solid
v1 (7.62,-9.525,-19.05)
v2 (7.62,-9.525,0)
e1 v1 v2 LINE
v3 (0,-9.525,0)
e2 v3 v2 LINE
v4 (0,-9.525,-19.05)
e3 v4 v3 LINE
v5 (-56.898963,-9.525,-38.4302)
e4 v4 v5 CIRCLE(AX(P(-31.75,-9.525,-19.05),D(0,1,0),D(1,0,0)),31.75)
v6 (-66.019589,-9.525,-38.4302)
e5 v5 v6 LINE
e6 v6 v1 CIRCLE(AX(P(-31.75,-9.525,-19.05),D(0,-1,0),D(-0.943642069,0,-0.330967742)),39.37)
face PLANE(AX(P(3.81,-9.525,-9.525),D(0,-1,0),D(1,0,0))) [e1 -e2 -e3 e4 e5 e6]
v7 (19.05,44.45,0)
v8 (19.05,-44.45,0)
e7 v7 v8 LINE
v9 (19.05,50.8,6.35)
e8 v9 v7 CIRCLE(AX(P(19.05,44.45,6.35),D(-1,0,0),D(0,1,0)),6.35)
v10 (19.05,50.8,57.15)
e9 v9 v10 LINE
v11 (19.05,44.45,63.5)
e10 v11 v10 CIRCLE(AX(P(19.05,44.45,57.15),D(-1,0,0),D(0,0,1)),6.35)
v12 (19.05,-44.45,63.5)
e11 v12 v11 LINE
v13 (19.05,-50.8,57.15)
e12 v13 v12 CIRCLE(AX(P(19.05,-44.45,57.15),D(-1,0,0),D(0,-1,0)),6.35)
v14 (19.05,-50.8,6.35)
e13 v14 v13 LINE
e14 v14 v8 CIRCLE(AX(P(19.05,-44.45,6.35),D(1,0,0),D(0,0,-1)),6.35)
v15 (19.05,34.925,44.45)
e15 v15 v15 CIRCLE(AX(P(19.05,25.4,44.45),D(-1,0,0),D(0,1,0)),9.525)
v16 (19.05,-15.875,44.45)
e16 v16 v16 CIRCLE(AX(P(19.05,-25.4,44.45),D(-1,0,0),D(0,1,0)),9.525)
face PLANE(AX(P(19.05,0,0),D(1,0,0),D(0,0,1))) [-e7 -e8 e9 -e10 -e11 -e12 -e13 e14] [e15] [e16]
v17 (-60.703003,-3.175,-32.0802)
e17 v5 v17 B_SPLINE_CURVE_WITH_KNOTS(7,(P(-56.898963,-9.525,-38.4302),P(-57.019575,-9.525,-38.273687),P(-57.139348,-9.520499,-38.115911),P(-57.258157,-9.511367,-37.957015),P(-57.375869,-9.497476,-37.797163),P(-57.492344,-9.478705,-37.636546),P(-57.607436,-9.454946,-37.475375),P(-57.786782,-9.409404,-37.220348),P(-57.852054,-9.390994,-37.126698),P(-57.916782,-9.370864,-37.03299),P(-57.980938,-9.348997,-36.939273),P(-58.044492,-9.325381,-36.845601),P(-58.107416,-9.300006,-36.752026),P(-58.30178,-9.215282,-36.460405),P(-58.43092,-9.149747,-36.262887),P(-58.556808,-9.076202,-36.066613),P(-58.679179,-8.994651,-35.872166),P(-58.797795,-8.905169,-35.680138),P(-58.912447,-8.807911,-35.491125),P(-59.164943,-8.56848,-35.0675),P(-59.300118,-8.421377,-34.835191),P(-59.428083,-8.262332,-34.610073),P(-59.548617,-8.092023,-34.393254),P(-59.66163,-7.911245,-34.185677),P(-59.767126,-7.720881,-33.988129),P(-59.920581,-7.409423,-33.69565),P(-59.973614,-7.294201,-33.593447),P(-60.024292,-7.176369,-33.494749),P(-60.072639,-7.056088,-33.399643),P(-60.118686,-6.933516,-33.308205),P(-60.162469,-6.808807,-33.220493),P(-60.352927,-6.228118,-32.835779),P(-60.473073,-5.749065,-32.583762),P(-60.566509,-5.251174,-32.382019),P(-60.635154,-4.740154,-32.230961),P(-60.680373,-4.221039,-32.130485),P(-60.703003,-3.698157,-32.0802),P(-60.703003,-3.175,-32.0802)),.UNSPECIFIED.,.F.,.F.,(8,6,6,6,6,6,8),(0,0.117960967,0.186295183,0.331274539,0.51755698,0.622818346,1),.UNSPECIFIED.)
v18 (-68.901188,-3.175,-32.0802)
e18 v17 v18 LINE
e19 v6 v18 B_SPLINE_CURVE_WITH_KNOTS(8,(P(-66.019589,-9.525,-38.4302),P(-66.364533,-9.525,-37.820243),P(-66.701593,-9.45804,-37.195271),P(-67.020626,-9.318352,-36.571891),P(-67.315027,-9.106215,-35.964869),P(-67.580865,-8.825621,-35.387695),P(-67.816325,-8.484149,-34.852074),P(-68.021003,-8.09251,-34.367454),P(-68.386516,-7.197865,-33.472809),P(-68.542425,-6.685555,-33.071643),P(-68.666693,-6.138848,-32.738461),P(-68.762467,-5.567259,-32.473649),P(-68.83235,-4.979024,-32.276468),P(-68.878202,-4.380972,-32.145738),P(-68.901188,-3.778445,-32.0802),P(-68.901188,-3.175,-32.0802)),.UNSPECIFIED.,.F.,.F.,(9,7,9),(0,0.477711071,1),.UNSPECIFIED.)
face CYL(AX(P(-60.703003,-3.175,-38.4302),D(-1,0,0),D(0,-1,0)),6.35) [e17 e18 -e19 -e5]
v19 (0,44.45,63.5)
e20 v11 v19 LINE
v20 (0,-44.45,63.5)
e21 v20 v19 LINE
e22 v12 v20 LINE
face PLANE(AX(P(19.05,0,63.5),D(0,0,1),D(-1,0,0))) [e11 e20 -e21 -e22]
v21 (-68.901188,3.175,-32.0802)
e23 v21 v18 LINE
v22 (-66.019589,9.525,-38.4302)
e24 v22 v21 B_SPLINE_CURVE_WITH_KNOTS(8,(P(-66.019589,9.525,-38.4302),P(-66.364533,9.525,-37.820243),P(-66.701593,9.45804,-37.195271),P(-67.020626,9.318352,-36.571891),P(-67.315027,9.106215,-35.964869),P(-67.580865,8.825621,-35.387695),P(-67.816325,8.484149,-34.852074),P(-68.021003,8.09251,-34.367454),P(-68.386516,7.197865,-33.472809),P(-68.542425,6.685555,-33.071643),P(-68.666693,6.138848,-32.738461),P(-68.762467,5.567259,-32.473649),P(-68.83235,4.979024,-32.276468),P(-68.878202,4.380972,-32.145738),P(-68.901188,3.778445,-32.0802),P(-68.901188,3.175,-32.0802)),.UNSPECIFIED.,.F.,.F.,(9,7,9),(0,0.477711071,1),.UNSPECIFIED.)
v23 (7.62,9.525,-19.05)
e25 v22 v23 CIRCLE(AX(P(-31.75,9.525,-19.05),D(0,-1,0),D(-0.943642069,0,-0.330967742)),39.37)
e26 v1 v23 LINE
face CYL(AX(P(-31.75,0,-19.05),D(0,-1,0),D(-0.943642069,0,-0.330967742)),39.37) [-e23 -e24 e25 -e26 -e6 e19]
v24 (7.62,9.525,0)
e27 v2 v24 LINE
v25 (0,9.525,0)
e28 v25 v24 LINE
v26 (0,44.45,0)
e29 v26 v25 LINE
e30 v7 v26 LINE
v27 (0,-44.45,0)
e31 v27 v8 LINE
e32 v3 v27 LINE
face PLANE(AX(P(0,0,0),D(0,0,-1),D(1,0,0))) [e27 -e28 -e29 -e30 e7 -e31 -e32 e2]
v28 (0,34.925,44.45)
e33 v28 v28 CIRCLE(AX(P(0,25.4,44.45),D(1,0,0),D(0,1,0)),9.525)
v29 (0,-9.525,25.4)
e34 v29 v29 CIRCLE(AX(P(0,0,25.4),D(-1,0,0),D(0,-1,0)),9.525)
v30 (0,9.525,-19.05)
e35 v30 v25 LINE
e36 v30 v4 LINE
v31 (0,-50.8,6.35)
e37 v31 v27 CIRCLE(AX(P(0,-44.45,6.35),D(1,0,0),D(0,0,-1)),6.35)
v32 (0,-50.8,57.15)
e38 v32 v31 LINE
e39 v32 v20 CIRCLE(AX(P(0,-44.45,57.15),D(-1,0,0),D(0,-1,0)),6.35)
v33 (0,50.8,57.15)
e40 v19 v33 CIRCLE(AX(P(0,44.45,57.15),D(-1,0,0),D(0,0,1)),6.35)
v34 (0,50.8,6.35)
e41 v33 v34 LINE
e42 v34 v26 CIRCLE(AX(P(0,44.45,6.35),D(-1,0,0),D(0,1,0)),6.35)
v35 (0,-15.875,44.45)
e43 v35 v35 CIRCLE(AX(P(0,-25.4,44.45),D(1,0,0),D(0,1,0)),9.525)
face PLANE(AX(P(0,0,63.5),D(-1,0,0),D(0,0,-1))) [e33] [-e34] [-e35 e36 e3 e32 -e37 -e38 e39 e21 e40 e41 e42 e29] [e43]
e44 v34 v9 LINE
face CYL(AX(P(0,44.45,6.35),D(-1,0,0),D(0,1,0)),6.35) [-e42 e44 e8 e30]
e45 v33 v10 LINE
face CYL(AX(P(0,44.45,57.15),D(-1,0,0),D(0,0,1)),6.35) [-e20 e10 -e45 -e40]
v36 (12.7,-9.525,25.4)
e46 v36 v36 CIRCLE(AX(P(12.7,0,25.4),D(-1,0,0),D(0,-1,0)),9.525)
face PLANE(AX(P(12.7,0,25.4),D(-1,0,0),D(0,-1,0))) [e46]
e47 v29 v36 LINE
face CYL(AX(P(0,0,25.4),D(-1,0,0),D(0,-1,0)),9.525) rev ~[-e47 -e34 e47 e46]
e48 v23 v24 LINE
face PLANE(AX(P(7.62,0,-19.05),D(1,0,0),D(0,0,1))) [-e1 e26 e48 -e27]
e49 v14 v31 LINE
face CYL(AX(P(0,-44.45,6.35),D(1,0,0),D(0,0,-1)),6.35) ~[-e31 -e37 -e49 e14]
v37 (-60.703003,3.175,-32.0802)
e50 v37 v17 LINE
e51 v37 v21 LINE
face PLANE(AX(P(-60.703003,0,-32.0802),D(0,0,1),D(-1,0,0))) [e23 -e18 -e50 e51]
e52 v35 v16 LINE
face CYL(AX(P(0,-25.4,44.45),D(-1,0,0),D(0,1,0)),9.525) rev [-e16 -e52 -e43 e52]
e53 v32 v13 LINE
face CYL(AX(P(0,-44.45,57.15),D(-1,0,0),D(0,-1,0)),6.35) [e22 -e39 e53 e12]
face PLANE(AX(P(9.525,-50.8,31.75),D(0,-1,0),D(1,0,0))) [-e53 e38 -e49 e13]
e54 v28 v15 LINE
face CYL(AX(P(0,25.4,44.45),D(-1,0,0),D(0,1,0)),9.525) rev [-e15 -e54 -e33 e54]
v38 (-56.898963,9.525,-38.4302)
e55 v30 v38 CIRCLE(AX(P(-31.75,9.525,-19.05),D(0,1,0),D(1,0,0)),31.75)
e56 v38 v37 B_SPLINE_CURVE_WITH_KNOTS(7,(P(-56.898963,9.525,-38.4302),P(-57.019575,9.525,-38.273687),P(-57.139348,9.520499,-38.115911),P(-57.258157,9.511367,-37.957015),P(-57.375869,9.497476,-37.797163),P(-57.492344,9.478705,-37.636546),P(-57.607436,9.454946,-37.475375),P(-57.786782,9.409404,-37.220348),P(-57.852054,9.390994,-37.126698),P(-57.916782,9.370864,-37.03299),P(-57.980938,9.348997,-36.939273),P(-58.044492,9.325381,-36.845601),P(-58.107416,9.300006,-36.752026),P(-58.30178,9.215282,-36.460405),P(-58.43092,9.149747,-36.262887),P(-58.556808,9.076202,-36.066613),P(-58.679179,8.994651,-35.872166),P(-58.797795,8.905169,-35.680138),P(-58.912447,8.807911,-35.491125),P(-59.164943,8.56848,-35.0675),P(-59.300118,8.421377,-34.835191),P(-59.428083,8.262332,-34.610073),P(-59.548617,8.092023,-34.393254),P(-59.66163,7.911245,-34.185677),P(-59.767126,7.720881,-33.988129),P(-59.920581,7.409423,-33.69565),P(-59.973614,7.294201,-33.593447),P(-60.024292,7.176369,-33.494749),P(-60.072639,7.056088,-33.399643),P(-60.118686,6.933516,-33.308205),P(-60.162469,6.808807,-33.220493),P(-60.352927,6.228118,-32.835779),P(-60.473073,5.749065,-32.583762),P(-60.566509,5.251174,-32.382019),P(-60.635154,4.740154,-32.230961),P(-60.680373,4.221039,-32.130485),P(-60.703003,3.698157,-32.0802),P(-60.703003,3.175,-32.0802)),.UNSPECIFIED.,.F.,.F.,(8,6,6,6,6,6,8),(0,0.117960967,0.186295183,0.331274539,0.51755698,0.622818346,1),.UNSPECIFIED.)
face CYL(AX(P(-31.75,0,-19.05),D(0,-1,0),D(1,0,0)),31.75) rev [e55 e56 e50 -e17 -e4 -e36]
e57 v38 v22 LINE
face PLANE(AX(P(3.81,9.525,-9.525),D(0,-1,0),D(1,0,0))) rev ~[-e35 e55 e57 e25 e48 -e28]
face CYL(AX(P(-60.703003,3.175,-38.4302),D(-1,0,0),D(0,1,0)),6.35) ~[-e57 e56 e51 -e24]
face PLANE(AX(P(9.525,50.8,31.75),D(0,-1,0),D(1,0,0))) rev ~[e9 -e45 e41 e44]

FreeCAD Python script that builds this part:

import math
import FreeCAD as App
import Part
import Sketcher
Q = App.Units.Quantity


def edges_at(feature, points):
    """Names of the edges that pass closest to the given points."""
    edges = feature.Shape.Edges
    near = lambda p: min(range(len(edges)), key=lambda i: edges[i].distToShape(Part.Vertex(*p))[0])
    return sorted({f"Edge{near(p) + 1}" for p in points})


def add_polygon(sketch, points):
    """Adds a closed chain of lines whose ends are joined by coincident constraints."""
    first, n = sketch.GeometryCount, len(points)
    for a, b in zip(points, points[1:] + points[:1]):
        sketch.addGeometry(Part.LineSegment(App.Vector(*a, 0), App.Vector(*b, 0)), False)
    for i in range(n):
        sketch.addConstraint(Sketcher.Constraint("Coincident", first + i, 2, first + (i + 1) % n, 1))

doc = App.newDocument("Part")
params = doc.addObject("Spreadsheet::Sheet", "Params")
for row, (alias, value) in enumerate([
    ("sketch1_radius", "1.25 in"),
    ("sketch1_radius2", "1.55 in"),
    ("sketch1_height", "0.75 in"),
    ("pad1_length", "0.75 in"),
    ("sketch2_height", "2.5 in"),
    ("sketch2_width", "0.75 in"),
    ("pad2_length", "4 in"),
    ("sketch3_diameter", "0.75 in"),
    ("sketch4_diameter", "0.75 in"),
    ("pocket2_length", "0.5 in"),
    ("sketch5_radius", "0.25 in"),
    ("pocket3_length", "200 in"),
    ("fillet_radius", "0.25 in"),
], start=1):
    params.set(f"A{row}", alias)
    params.set(f"B{row}", "=" + value)
    params.setAlias(f"B{row}", alias)

body = doc.addObject("PartDesign::Body", "Body")

# Sketch on XZ plane
sketch1 = doc.addObject("Sketcher::SketchObject", "Sketch")
body.addObject(sketch1)
sketch1.AttachmentSupport = (doc.XZ_Plane, [""])
sketch1.MapMode = "FlatFace"
sketch1.addGeometry([
    Part.LineSegment(App.Vector(0, 0, 0), App.Vector(0, -19, 0)),  # 0
    Part.ArcOfCircle(Part.Circle(App.Vector(-32, -19, 0), App.Vector(0, 0, 1), 32), math.radians(-156), math.radians(0)),  # 1
    Part.LineSegment(App.Vector(-61, -32, 0), App.Vector(-69, -32, 0)),  # 2
    Part.ArcOfCircle(Part.Circle(App.Vector(-32, -19, 0), App.Vector(0, 0, 1), 39), math.radians(-161), math.radians(0)),  # 3
    Part.LineSegment(App.Vector(8, -19, 0), App.Vector(8, 0, 0)),  # 4
    Part.LineSegment(App.Vector(8, 0, 0), App.Vector(0, 0, 0)),  # 5
], False)
sketch1.addConstraint([
    Sketcher.Constraint("Tangent", 0, 2, 1, 2),
    Sketcher.Constraint("Coincident", 1, 1, 2, 1),
    Sketcher.Constraint("Coincident", 2, 2, 3, 1),
    Sketcher.Constraint("Tangent", 3, 2, 4, 1),
    Sketcher.Constraint("Coincident", 4, 2, 5, 1),
    Sketcher.Constraint("Coincident", 5, 2, 0, 1),
    Sketcher.Constraint("Vertical", 0),
    Sketcher.Constraint("Horizontal", 2),
    Sketcher.Constraint("Vertical", 4),
    Sketcher.Constraint("Horizontal", 5),
    Sketcher.Constraint("Coincident", 5, 2, -1, 1),
    Sketcher.Constraint("Coincident", 3, 3, 1, 3),
    Sketcher.Constraint("Radius", 1, Q("1.25 in")),
    Sketcher.Constraint("Radius", 3, Q("1.55 in")),
    Sketcher.Constraint("DistanceY", 0, 2, 0, 1, Q("0.75 in")),
    Sketcher.Constraint("DistanceY", 1, 1, -1, 1, Q("1.263 in")),
])
sketch1.setExpression("Constraints[12]", "Params.sketch1_radius")
sketch1.setExpression("Constraints[13]", "Params.sketch1_radius2")
sketch1.setExpression("Constraints[14]", "Params.sketch1_height")
pad1 = doc.addObject("PartDesign::Pad", "Pad")
body.addObject(pad1)
pad1.Profile = sketch1
pad1.setExpression("Length", "Params.pad1_length")
pad1.Midplane = True

# Sketch on XZ plane
sketch2 = doc.addObject("Sketcher::SketchObject", "Sketch001")
body.addObject(sketch2)
sketch2.AttachmentSupport = (doc.XZ_Plane, [""])
sketch2.MapMode = "FlatFace"
add_polygon(sketch2, [(0, 64), (0, 0), (19, 0), (19, 64)])  # lines 0-3
sketch2.addConstraint([
    Sketcher.Constraint("Vertical", 0),
    Sketcher.Constraint("Horizontal", 1),
    Sketcher.Constraint("Vertical", 2),
    Sketcher.Constraint("Horizontal", 3),
    Sketcher.Constraint("Coincident", 0, 2, -1, 1),
    Sketcher.Constraint("DistanceY", 0, 2, 0, 1, Q("2.5 in")),
    Sketcher.Constraint("DistanceX", 1, 1, 1, 2, Q("0.75 in")),
])
sketch2.setExpression("Constraints[9]", "Params.sketch2_height")
sketch2.setExpression("Constraints[10]", "Params.sketch2_width")
pad2 = doc.addObject("PartDesign::Pad", "Pad001")
body.addObject(pad2)
pad2.Profile = sketch2
pad2.setExpression("Length", "Params.pad2_length")
pad2.Midplane = True

# Sketch on YZ plane
sketch3 = doc.addObject("Sketcher::SketchObject", "Sketch002")
body.addObject(sketch3)
sketch3.AttachmentSupport = (doc.YZ_Plane, [""])
sketch3.MapMode = "FlatFace"
sketch3.addGeometry([
    Part.Circle(App.Vector(25, 44, 0), App.Vector(0, 0, 1), 10),
    Part.Circle(App.Vector(-25, 44, 0), App.Vector(0, 0, 1), 10),
], False)
sketch3.addConstraint([
    Sketcher.Constraint("Equal", 0, 1),
    Sketcher.Constraint("Symmetric", 0, 3, 1, 3, -2),
    Sketcher.Constraint("Diameter", 0, Q("0.75 in")),
    Sketcher.Constraint("DistanceX", -1, 1, 0, 3, Q("1 in")),
    Sketcher.Constraint("DistanceY", -1, 1, 0, 3, Q("1.75 in")),
])
sketch3.setExpression("Constraints[2]", "Params.sketch3_diameter")
pocket1 = doc.addObject("PartDesign::Pocket", "Pocket")
body.addObject(pocket1)
pocket1.Profile = sketch3
pocket1.Type = "ThroughAll"
pocket1.Reversed = True

# Sketch on YZ plane
sketch4 = doc.addObject("Sketcher::SketchObject", "Sketch003")
body.addObject(sketch4)
sketch4.AttachmentSupport = (doc.YZ_Plane, [""])
sketch4.MapMode = "FlatFace"
sketch4.addGeometry(Part.Circle(App.Vector(0, 25, 0), App.Vector(0, 0, 1), 10), False)
sketch4.addConstraint([
    Sketcher.Constraint("PointOnObject", 0, 3, -2),
    Sketcher.Constraint("Diameter", 0, Q("0.75 in")),
    Sketcher.Constraint("DistanceY", -1, 1, 0, 3, Q("1 in")),
])
sketch4.setExpression("Constraints[1]", "Params.sketch4_diameter")
pocket2 = doc.addObject("PartDesign::Pocket", "Pocket001")
body.addObject(pocket2)
pocket2.Profile = sketch4
pocket2.setExpression("Length", "Params.pocket2_length")
pocket2.Reversed = True

# Sketch on YZ plane
sketch5 = doc.addObject("Sketcher::SketchObject", "Sketch004")
body.addObject(sketch5)
sketch5.AttachmentSupport = (doc.YZ_Plane, [""])
sketch5.MapMode = "FlatFace"
sketch5.addGeometry([
    Part.ArcOfCircle(Part.Circle(App.Vector(44, 57, 0), App.Vector(0, 0, 1), 6), math.radians(0), math.radians(90)),  # 0
    Part.LineSegment(App.Vector(51, 57, 0), App.Vector(51, 64, 0)),  # 1
    Part.LineSegment(App.Vector(51, 64, 0), App.Vector(44, 64, 0)),  # 2
    Part.LineSegment(App.Vector(-51, 64, 0), App.Vector(-51, 57, 0)),  # 3
    Part.ArcOfCircle(Part.Circle(App.Vector(-44, 57, 0), App.Vector(0, 0, 1), 6), math.radians(90), math.radians(180)),  # 4
    Part.LineSegment(App.Vector(-44, 64, 0), App.Vector(-51, 64, 0)),  # 5
    Part.LineSegment(App.Vector(51, 0, 0), App.Vector(51, 6, 0)),  # 6
    Part.ArcOfCircle(Part.Circle(App.Vector(44, 6, 0), App.Vector(0, 0, 1), 6), math.radians(-90), math.radians(0)),  # 7
    Part.LineSegment(App.Vector(44, 0, 0), App.Vector(51, 0, 0)),  # 8
    Part.LineSegment(App.Vector(-51, 0, 0), App.Vector(-44, 0, 0)),  # 9
    Part.ArcOfCircle(Part.Circle(App.Vector(-44, 6, 0), App.Vector(0, 0, 1), 6), math.radians(180), math.radians(270)),  # 10
    Part.LineSegment(App.Vector(-51, 6, 0), App.Vector(-51, 0, 0)),  # 11
], False)
sketch5.addConstraint([
    Sketcher.Constraint("Tangent", 0, 1, 1, 1),
    Sketcher.Constraint("Coincident", 1, 2, 2, 1),
    Sketcher.Constraint("Tangent", 2, 2, 0, 2),
    Sketcher.Constraint("Tangent", 3, 2, 4, 2),
    Sketcher.Constraint("Tangent", 4, 1, 5, 1),
    Sketcher.Constraint("Coincident", 5, 2, 3, 1),
    Sketcher.Constraint("Tangent", 6, 2, 7, 2),
    Sketcher.Constraint("Tangent", 7, 1, 8, 1),
    Sketcher.Constraint("Coincident", 8, 2, 6, 1),
    Sketcher.Constraint("Tangent", 9, 2, 10, 2),
    Sketcher.Constraint("Tangent", 10, 1, 11, 1),
    Sketcher.Constraint("Coincident", 11, 2, 9, 1),
    Sketcher.Constraint("Vertical", 1),
    Sketcher.Constraint("Horizontal", 2),
    Sketcher.Constraint("Vertical", 3),
    Sketcher.Constraint("Horizontal", 5),
    Sketcher.Constraint("Vertical", 6),
    Sketcher.Constraint("Horizontal", 8),
    Sketcher.Constraint("Horizontal", 9),
    Sketcher.Constraint("Vertical", 11),
    Sketcher.Constraint("Equal", 0, 4),
    Sketcher.Constraint("Equal", 4, 7),
    Sketcher.Constraint("Equal", 7, 10),
    Sketcher.Constraint("Symmetric", 7, 1, 9, 2, -1, 1),
    Sketcher.Constraint("Symmetric", 0, 3, 4, 3, -2),
    Sketcher.Constraint("PointOnObject", 7, 1, -1),
    Sketcher.Constraint("Vertical", 0, 3, 7, 3),
    Sketcher.Constraint("Radius", 0, Q("0.25 in")),
    Sketcher.Constraint("DistanceX", -1, 1, 0, 1, Q("2 in")),
    Sketcher.Constraint("DistanceY", 7, 3, 0, 3, Q("2 in")),
])
sketch5.setExpression("Constraints[27]", "Params.sketch5_radius")
pocket3 = doc.addObject("PartDesign::Pocket", "Pocket002")
body.addObject(pocket3)
pocket3.Profile = sketch5
pocket3.setExpression("Length", "Params.pocket3_length")
pocket3.Midplane = True
doc.recompute()

fillet = doc.addObject("PartDesign::Fillet", "Fillet")
body.addObject(fillet)
fillet.Base = (pocket3, edges_at(pocket3, [(-64.802, 9.525, -32.08), (-64.802, -9.525, -32.08)]))
fillet.setExpression("Radius", "Params.fillet_radius")

doc.recompute()
